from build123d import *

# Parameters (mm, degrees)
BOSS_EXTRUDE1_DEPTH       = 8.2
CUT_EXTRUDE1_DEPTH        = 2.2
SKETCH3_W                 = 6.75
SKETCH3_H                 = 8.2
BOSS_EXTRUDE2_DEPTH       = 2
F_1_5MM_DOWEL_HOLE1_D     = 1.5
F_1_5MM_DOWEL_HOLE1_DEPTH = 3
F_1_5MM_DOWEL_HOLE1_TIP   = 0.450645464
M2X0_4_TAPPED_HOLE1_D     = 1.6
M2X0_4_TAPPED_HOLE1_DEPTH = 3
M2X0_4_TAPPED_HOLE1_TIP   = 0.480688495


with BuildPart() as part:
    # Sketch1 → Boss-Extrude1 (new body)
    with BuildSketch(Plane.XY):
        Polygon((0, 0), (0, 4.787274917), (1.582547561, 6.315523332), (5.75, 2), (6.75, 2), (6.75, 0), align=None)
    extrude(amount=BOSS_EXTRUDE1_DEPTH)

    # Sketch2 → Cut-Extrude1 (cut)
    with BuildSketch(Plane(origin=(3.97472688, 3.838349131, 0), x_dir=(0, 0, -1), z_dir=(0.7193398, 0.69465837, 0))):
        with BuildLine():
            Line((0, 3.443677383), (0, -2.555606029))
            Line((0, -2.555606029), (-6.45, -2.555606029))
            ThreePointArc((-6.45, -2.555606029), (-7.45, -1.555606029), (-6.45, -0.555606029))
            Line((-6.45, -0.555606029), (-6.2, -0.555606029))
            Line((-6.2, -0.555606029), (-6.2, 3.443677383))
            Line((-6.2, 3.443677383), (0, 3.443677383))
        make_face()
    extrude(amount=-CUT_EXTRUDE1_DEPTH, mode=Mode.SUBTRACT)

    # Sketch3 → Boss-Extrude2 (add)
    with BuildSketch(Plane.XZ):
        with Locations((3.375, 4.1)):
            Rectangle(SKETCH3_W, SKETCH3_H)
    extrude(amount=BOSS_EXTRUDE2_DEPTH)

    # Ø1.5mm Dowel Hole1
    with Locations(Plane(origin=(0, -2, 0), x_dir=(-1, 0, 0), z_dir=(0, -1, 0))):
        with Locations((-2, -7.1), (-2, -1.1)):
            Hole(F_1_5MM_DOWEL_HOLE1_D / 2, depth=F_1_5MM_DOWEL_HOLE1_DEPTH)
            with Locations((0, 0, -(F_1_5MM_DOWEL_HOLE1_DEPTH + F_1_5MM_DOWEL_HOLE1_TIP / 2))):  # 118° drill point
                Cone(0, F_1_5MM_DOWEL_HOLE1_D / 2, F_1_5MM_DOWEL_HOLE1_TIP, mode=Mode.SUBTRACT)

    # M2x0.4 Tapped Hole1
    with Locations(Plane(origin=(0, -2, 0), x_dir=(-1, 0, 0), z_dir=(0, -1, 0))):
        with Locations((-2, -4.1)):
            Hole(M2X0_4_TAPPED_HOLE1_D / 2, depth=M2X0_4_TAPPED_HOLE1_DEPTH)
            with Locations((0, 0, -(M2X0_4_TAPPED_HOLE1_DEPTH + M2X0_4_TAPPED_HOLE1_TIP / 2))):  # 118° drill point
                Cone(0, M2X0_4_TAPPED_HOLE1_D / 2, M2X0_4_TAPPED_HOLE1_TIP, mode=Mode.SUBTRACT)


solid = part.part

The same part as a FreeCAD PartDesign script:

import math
import FreeCAD as App
import Part
import Sketcher
Q = App.Units.Quantity

doc = App.newDocument("Part")
params = doc.addObject("Spreadsheet::Sheet", "Params")
for row, (alias, value) in enumerate([
    ("sketch1_width", "1 mm"),
    ("sketch1_height", "2 mm"),
    ("sketch1_length", "2.2 mm"),
    ("sketch1_width2", "6.75 mm"),
    ("pad1_length", "8.2 mm"),
    ("sketch2_radius", "1 mm"),
    ("sketch2_width", "6.2 mm"),
    ("sketch2_width2", "0.25 mm"),
    ("pocket1_length", "2.2 mm"),
    ("sketch3_height", "8.2 mm"),
    ("sketch3_width", "6.75 mm"),
    ("pad2_length", "2 mm"),
    ("sketch4_diameter", "1.5 mm"),
    ("hole_diameter", "1.5 mm"),
    ("hole_depth", "3 mm"),
    ("sketch5_diameter", "1.6 mm"),
    ("hole2_diameter", "1.6 mm"),
    ("hole2_depth", "3 mm"),
], start=1):
    params.set(f"A{row}", alias)
    params.set(f"B{row}", "=" + value)
    params.setAlias(f"B{row}", alias)

body = doc.addObject("PartDesign::Body", "Body")

# Sketch on XY plane
sketch1 = body.newObject("Sketcher::SketchObject", "Sketch")
sketch1.AttachmentSupport = (doc.getObject("XY_Plane"), [""])
sketch1.MapMode = "FlatFace"
sketch1.addGeometry([
    Part.LineSegment(App.Vector(0, 4.8, 0), App.Vector(0, 0, 0)),  # 0
    Part.LineSegment(App.Vector(0, 0, 0), App.Vector(6.8, 0, 0)),  # 1
    Part.LineSegment(App.Vector(6.8, 0, 0), App.Vector(6.8, 2, 0)),  # 2
    Part.LineSegment(App.Vector(6.8, 2, 0), App.Vector(5.8, 2, 0)),  # 3
    Part.LineSegment(App.Vector(5.8, 2, 0), App.Vector(1.6, 6.3, 0)),  # 4
    Part.LineSegment(App.Vector(1.6, 6.3, 0), App.Vector(0, 4.8, 0)),  # 5
], False)
sketch1.addConstraint([
    Sketcher.Constraint("Coincident", 0, 2, 1, 1),
    Sketcher.Constraint("Coincident", 1, 2, 2, 1),
    Sketcher.Constraint("Coincident", 2, 2, 3, 1),
    Sketcher.Constraint("Coincident", 3, 2, 4, 1),
    Sketcher.Constraint("Coincident", 4, 2, 5, 1),
    Sketcher.Constraint("Coincident", 5, 2, 0, 1),
    Sketcher.Constraint("Vertical", 0),
    Sketcher.Constraint("Horizontal", 1),
    Sketcher.Constraint("Vertical", 2),
    Sketcher.Constraint("Horizontal", 3),
    Sketcher.Constraint("Coincident", 0, 2, -1, 1),
    Sketcher.Constraint("Perpendicular", 4, 5),
    Sketcher.Constraint("DistanceX", 3, 2, 3, 1, Q("1 mm")),
    Sketcher.Constraint("DistanceY", 2, 1, 2, 2, Q("2 mm")),
    Sketcher.Constraint("Angle", 4, Q("134 deg")),
    Sketcher.Constraint("Distance", 5, Q("2.2 mm")),
    Sketcher.Constraint("DistanceX", 1, 1, 1, 2, Q("6.75 mm")),
])
sketch1.setExpression("Constraints[12]", "Params.sketch1_width")
sketch1.setExpression("Constraints[13]", "Params.sketch1_height")
sketch1.setExpression("Constraints[15]", "Params.sketch1_length")
sketch1.setExpression("Constraints[16]", "Params.sketch1_width2")
pad1 = body.newObject("PartDesign::Pad", "Pad")
pad1.Profile = sketch1
pad1.setExpression("Length", "Params.pad1_length")

# Sketch on an angled plane
sketch2 = body.newObject("Sketcher::SketchObject", "Sketch001")
sketch2.Placement = App.Placement(App.Vector(3.974727, 3.838349, 0), App.Rotation(App.Vector(0, 0, -1), App.Vector(-0.69465837, 0.7193398, 0), App.Vector(0.7193398, 0.69465837, 0), "ZXY"))
sketch2.addGeometry([
    Part.LineSegment(App.Vector(0, -2.56, 0), App.Vector(0, 3.44, 0)),  # 0
    Part.LineSegment(App.Vector(0, 3.44, 0), App.Vector(-6.2, 3.44, 0)),  # 1
    Part.LineSegment(App.Vector(-6.2, 3.44, 0), App.Vector(-6.2, -0.56, 0)),  # 2
    Part.LineSegment(App.Vector(-6.2, -0.56, 0), App.Vector(-6.45, -0.56, 0)),  # 3
    Part.ArcOfCircle(Part.Circle(App.Vector(-6.45, -1.56, 0), App.Vector(0, 0, 1), 1), math.radians(90), math.radians(270)),  # 4
    Part.LineSegment(App.Vector(-6.45, -2.56, 0), App.Vector(0, -2.56, 0)),  # 5
], False)
sketch2.addConstraint([
    Sketcher.Constraint("Coincident", 0, 2, 1, 1),
    Sketcher.Constraint("Coincident", 1, 2, 2, 1),
    Sketcher.Constraint("Coincident", 2, 2, 3, 1),
    Sketcher.Constraint("Tangent", 3, 2, 4, 1),
    Sketcher.Constraint("Tangent", 4, 2, 5, 1),
    Sketcher.Constraint("Coincident", 5, 2, 0, 1),
    Sketcher.Constraint("Vertical", 0),
    Sketcher.Constraint("Horizontal", 1),
    Sketcher.Constraint("Vertical", 2),
    Sketcher.Constraint("Horizontal", 3),
    Sketcher.Constraint("Horizontal", 5),
    Sketcher.Constraint("PointOnObject", 0, 2, -2),
    Sketcher.Constraint("Radius", 4, Q("1 mm")),
    Sketcher.Constraint("DistanceX", 1, 2, 1, 1, Q("6.2 mm")),
    Sketcher.Constraint("DistanceX", 3, 2, 3, 1, Q("0.25 mm")),
    Sketcher.Constraint("DistanceY", 0, 1, 0, 2, Q("5.999283 mm")),
    Sketcher.Constraint("DistanceY", 4, 3, -1, 1, Q("1.555606 mm")),
])
sketch2.setExpression("Constraints[12]", "Params.sketch2_radius")
sketch2.setExpression("Constraints[13]", "Params.sketch2_width")
sketch2.setExpression("Constraints[14]", "Params.sketch2_width2")
pocket1 = body.newObject("PartDesign::Pocket", "Pocket")
pocket1.Profile = sketch2
pocket1.setExpression("Length", "Params.pocket1_length")

# Sketch on XZ plane
sketch3 = body.newObject("Sketcher::SketchObject", "Sketch002")
sketch3.AttachmentSupport = (doc.getObject("XZ_Plane"), [""])
sketch3.MapMode = "FlatFace"
sketch3.addGeometry([
    Part.LineSegment(App.Vector(0, 8, 0), App.Vector(0, 0, 0)),
    Part.LineSegment(App.Vector(0, 0, 0), App.Vector(7, 0, 0)),
    Part.LineSegment(App.Vector(7, 0, 0), App.Vector(7, 8, 0)),
    Part.LineSegment(App.Vector(7, 8, 0), App.Vector(0, 8, 0)),
], False)
sketch3.addConstraint([
    Sketcher.Constraint("Coincident", 0, 2, 1, 1),
    Sketcher.Constraint("Coincident", 1, 2, 2, 1),
    Sketcher.Constraint("Coincident", 2, 2, 3, 1),
    Sketcher.Constraint("Coincident", 3, 2, 0, 1),
    Sketcher.Constraint("Vertical", 0),
    Sketcher.Constraint("Horizontal", 1),
    Sketcher.Constraint("Vertical", 2),
    Sketcher.Constraint("Horizontal", 3),
    Sketcher.Constraint("Coincident", 0, 2, -1, 1),
    Sketcher.Constraint("DistanceY", 0, 2, 0, 1, Q("8.2 mm")),
    Sketcher.Constraint("DistanceX", 1, 1, 1, 2, Q("6.75 mm")),
])
sketch3.setExpression("Constraints[9]", "Params.sketch3_height")
sketch3.setExpression("Constraints[10]", "Params.sketch3_width")
pad2 = body.newObject("PartDesign::Pad", "Pad001")
pad2.Profile = sketch3
pad2.setExpression("Length", "Params.pad2_length")

# Sketch on XZ plane
sketch4 = body.newObject("Sketcher::SketchObject", "Sketch003")
sketch4.AttachmentSupport = (doc.getObject("XZ_Plane"), [""])
sketch4.MapMode = "FlatFace"
sketch4.AttachmentOffset = App.Placement(App.Vector(0, 0, 2), App.Rotation())
sketch4.addGeometry([
    Part.Circle(App.Vector(2, 7.1, 0), App.Vector(0, 0, 1), 0.8),
    Part.Circle(App.Vector(2, 1.1, 0), App.Vector(0, 0, 1), 0.8),
], False)
sketch4.addConstraint([
    Sketcher.Constraint("Equal", 0, 1),
    Sketcher.Constraint("Vertical", 0, 3, 1, 3),
    Sketcher.Constraint("Diameter", 0, Q("1.5 mm")),
    Sketcher.Constraint("DistanceX", -1, 1, 0, 3, Q("2 mm")),
    Sketcher.Constraint("DistanceY", 1, 3, 0, 3, Q("6 mm")),
    Sketcher.Constraint("DistanceY", -1, 1, 0, 3, Q("7.1 mm")),
])
sketch4.setExpression("Constraints[2]", "Params.sketch4_diameter")
doc.recompute()
hole = body.newObject("PartDesign::Hole", "Hole")
hole.Profile = sketch4
hole.ThreadType = "None"
hole.setExpression("Diameter", "Params.hole_diameter")
hole.DepthType = "Dimension"
hole.setExpression("Depth", "Params.hole_depth")
hole.DrillPoint = "Angled"
hole.DrillPointAngle = 118

# Sketch on XZ plane
sketch5 = body.newObject("Sketcher::SketchObject", "Sketch004")
sketch5.AttachmentSupport = (doc.getObject("XZ_Plane"), [""])
sketch5.MapMode = "FlatFace"
sketch5.AttachmentOffset = App.Placement(App.Vector(0, 0, 2), App.Rotation())
sketch5.addGeometry(Part.Circle(App.Vector(2, 4.1, 0), App.Vector(0, 0, 1), 0.8), False)
sketch5.addConstraint([
    Sketcher.Constraint("Diameter", 0, Q("1.6 mm")),
    Sketcher.Constraint("DistanceX", -1, 1, 0, 3, Q("2 mm")),
    Sketcher.Constraint("DistanceY", -1, 1, 0, 3, Q("4.1 mm")),
])
sketch5.setExpression("Constraints[0]", "Params.sketch5_diameter")
doc.recompute()
hole2 = body.newObject("PartDesign::Hole", "Hole001")
hole2.Profile = sketch5
hole2.ThreadType = "None"
hole2.setExpression("Diameter", "Params.hole2_diameter")
hole2.DepthType = "Dimension"
hole2.setExpression("Depth", "Params.hole2_depth")
hole2.DrillPoint = "Angled"
hole2.DrillPointAngle = 118

doc.recompute()
